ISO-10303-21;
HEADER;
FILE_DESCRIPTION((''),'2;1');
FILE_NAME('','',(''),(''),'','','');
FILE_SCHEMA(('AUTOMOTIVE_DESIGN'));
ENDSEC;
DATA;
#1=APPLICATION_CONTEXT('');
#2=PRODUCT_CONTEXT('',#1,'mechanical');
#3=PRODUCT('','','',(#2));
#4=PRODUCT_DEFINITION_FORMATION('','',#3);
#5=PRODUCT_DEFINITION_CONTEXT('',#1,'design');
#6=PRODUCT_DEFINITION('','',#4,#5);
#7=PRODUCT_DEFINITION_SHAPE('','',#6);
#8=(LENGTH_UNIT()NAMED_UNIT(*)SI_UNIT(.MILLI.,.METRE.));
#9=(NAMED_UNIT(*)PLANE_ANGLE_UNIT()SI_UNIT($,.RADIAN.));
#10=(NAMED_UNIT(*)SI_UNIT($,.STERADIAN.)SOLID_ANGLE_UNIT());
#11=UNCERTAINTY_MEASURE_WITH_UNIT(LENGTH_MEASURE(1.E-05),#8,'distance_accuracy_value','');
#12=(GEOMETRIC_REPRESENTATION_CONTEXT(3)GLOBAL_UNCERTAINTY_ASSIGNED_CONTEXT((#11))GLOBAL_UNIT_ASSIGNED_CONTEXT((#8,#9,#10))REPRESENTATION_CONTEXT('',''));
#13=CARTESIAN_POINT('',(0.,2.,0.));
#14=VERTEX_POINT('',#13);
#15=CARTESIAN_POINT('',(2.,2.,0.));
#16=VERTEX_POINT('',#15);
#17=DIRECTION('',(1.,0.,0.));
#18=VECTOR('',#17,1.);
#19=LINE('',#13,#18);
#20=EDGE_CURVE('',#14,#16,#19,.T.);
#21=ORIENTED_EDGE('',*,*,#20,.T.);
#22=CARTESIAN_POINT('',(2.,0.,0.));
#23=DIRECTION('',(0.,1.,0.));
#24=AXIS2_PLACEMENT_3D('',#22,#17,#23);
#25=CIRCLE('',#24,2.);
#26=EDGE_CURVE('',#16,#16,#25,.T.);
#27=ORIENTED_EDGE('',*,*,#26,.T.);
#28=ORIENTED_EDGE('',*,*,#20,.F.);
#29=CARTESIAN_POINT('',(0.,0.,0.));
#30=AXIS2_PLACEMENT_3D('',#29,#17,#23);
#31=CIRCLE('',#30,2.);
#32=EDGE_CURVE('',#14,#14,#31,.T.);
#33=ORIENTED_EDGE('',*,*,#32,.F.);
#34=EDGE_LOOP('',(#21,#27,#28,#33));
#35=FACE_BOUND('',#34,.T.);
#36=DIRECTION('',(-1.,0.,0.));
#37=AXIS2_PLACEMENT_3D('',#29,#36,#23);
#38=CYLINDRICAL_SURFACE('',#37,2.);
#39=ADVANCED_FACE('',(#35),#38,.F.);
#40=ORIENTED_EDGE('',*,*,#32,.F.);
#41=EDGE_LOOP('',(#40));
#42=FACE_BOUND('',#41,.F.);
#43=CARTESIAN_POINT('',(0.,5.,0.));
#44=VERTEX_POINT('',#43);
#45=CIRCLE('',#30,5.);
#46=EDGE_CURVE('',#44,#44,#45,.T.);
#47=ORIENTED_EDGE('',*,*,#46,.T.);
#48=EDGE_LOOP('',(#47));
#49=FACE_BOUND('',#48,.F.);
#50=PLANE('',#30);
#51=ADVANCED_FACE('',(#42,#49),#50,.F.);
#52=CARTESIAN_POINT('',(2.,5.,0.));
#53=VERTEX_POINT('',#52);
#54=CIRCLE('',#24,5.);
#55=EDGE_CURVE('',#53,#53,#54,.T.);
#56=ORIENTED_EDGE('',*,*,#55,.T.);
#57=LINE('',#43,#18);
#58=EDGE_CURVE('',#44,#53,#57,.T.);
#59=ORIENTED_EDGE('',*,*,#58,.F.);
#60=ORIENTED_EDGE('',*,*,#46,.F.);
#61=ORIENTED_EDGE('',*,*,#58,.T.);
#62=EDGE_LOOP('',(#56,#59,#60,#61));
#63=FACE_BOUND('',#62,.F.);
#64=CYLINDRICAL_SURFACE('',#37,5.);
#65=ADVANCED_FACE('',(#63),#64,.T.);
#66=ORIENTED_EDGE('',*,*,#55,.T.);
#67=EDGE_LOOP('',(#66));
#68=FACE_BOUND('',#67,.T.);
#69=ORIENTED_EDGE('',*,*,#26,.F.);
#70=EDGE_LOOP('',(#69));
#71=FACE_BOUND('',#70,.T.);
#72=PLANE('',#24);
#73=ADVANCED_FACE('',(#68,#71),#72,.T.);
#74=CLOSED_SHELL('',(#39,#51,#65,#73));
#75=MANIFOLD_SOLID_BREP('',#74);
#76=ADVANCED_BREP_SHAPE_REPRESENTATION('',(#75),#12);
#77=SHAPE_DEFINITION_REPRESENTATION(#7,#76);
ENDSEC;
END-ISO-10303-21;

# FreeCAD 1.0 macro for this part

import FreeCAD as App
import Part
import Sketcher
from FreeCAD import Vector
Q = App.Units.Quantity

doc = App.newDocument("Part")
body = doc.addObject("PartDesign::Body", "Body")

sketch1 = body.newObject("Sketcher::SketchObject", "Sketch")
sketch1.AttachmentSupport = (doc.getObject("YZ_Plane"), [""])
sketch1.MapMode = "FlatFace"
sketch1.addGeometry([
    Part.Circle(Vector(0, 0, 0), Vector(0, 0, 1), 5),
    Part.Circle(Vector(0, 0, 0), Vector(0, 0, 1), 2),
], False)
sketch1.addConstraint([
    Sketcher.Constraint("Coincident", 0, 3, -1, 1),
    Sketcher.Constraint("Coincident", 1, 3, -1, 1),
    Sketcher.Constraint("Diameter", 0, Q("10 mm")),
    Sketcher.Constraint("Diameter", 1, Q("4 mm")),
])
pad1 = body.newObject("PartDesign::Pad", "Pad")
pad1.Profile = sketch1
pad1.Length = 2

doc.recompute()
